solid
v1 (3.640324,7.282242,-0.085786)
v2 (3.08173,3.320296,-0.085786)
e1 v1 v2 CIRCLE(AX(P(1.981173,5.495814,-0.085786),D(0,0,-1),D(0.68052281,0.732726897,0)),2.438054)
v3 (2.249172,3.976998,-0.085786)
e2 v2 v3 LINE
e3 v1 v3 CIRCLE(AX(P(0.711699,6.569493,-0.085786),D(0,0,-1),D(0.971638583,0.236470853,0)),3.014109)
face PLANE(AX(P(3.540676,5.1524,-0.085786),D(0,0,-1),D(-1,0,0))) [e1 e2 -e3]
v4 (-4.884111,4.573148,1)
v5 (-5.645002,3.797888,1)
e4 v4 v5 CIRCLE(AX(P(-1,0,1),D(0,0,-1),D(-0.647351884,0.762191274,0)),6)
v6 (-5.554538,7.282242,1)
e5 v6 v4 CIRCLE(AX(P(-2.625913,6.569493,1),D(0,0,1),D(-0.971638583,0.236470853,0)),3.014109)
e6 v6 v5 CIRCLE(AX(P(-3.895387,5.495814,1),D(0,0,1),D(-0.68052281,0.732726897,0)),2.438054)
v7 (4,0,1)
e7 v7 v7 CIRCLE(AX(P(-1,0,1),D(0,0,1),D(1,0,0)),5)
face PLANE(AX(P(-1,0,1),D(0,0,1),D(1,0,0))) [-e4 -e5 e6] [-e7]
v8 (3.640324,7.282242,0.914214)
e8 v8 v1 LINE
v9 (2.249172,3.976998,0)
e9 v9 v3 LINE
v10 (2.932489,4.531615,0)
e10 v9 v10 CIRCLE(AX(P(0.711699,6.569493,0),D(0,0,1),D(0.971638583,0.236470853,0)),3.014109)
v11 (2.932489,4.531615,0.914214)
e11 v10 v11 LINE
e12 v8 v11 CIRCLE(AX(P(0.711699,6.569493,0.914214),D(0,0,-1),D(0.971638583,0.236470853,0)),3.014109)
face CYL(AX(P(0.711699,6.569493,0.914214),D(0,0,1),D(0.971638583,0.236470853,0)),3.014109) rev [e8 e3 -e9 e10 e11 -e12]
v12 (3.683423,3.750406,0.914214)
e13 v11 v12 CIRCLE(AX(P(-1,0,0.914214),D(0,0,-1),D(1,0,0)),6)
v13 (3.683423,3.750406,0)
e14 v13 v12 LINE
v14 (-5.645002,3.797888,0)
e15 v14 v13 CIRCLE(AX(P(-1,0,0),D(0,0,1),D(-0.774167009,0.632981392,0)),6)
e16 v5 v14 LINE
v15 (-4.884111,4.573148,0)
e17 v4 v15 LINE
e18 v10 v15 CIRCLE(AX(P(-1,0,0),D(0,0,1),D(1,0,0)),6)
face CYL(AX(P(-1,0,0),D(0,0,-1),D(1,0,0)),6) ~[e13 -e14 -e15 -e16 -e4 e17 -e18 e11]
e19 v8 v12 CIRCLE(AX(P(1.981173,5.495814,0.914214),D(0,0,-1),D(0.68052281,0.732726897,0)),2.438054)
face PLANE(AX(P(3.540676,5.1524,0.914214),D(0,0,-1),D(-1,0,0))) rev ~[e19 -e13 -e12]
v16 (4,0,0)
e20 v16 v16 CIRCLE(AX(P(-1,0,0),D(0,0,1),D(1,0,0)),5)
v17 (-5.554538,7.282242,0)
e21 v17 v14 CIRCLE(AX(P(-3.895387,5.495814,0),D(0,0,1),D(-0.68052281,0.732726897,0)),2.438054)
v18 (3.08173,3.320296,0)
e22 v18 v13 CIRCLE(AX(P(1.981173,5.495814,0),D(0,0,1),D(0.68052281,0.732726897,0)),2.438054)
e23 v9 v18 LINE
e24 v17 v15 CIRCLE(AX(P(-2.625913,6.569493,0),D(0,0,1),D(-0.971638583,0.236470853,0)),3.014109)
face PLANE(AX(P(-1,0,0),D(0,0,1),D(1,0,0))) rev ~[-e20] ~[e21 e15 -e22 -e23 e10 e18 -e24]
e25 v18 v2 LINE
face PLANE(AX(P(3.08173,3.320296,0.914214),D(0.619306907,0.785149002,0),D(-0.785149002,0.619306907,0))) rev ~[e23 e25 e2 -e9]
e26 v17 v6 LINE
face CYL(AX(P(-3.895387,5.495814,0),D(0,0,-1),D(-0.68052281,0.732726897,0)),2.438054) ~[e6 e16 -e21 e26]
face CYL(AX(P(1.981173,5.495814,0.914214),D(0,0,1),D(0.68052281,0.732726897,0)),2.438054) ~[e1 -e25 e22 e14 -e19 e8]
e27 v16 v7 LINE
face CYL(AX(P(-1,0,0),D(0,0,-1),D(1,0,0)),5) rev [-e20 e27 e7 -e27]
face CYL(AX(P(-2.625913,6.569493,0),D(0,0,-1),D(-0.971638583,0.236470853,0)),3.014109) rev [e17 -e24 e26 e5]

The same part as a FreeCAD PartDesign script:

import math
import FreeCAD as App
import Part
import Sketcher

V = App.Vector
Q = App.Units.Quantity

doc = App.newDocument("Part")
params = doc.addObject("Spreadsheet::Sheet", "Params")
for row, (alias, value) in enumerate([
    ("pad1_length", "1 mm"),
    ("pad2_length", "1 mm"),
    ("sketch3_diameter", "12 mm"),
    ("sketch3_diameter2", "10 mm"),
    ("pad3_length", "1 mm"),
    ("pad4_length", "1 mm"),
], start=1):
    params.set(f"A{row}", alias)
    params.set(f"B{row}", "=" + value)
    params.setAlias(f"B{row}", alias)

body = doc.addObject("PartDesign::Body", "Body")

sketch1 = body.newObject("Sketcher::SketchObject", "Sketch")
sketch1.AttachmentSupport = (doc.getObject("XY_Plane"), [""])
sketch1.MapMode = "FlatFace"
sketch1.addGeometry([
    Part.ArcOfCircle(Part.Circle(V(-3.9, 5.5, 0), V(0, 0, 1), 2.4), math.radians(133), math.radians(243)),
    Part.LineSegment(V(-5, 3.3, 0), V(-4.2, 4, 0)),
    Part.ArcOfCircle(Part.Circle(V(-2.6, 6.6, 0), V(0, 0, 1), 3), math.radians(166), math.radians(239)),
], False)
sketch1.addConstraint([
    Sketcher.Constraint("Coincident", 0, 2, 1, 1),
    Sketcher.Constraint("Coincident", 1, 2, 2, 2),
    Sketcher.Constraint("Coincident", 2, 1, 0, 1),
    Sketcher.Constraint("Radius", 2, Q("3.014109 mm")),
    Sketcher.Constraint("DistanceY", -1, 1, 1, 2, Q("3.976998 mm")),
    Sketcher.Constraint("Radius", 0, Q("2.438054 mm")),
    Sketcher.Constraint("DistanceX", 1, 2, 0, 3, Q("0.267999 mm")),
    Sketcher.Constraint("DistanceX", 2, 1, -1, 1, Q("5.554538 mm")),
    Sketcher.Constraint("DistanceY", 0, 3, 2, 3, Q("1.073679 mm")),
    Sketcher.Constraint("DistanceY", 0, 2, 0, 3, Q("2.175518 mm")),
    Sketcher.Constraint("DistanceX", 0, 2, 2, 3, Q("2.370031 mm")),
])
pad1 = body.newObject("PartDesign::Pad", "Pad")
pad1.Profile = sketch1
pad1.setExpression("Length", "Params.pad1_length")
body2 = doc.addObject("PartDesign::Body", "Body001")

sketch2 = body2.newObject("Sketcher::SketchObject", "Sketch001")
sketch2.AttachmentSupport = (doc.getObject("XY_Plane001"), [""])
sketch2.MapMode = "FlatFace"
sketch2.addGeometry([
    Part.ArcOfCircle(Part.Circle(V(-3.9, 5.5, 0), V(0, 0, 1), 2.4), math.radians(133), math.radians(243)),
    Part.LineSegment(V(-5, 3.3, 0), V(-4.2, 4, 0)),
    Part.ArcOfCircle(Part.Circle(V(-2.6, 6.6, 0), V(0, 0, 1), 3), math.radians(166), math.radians(239)),
], False)
sketch2.addConstraint([
    Sketcher.Constraint("Coincident", 0, 2, 1, 1),
    Sketcher.Constraint("Coincident", 1, 2, 2, 2),
    Sketcher.Constraint("Coincident", 2, 1, 0, 1),
    Sketcher.Constraint("Radius", 2, Q("3.014109 mm")),
    Sketcher.Constraint("DistanceY", -1, 1, 1, 2, Q("3.976998 mm")),
    Sketcher.Constraint("Radius", 0, Q("2.438054 mm")),
    Sketcher.Constraint("DistanceX", 1, 2, 0, 3, Q("0.267999 mm")),
    Sketcher.Constraint("DistanceX", 2, 1, -1, 1, Q("5.554538 mm")),
    Sketcher.Constraint("DistanceY", 0, 3, 2, 3, Q("1.073679 mm")),
    Sketcher.Constraint("DistanceY", 0, 2, 0, 3, Q("2.175518 mm")),
    Sketcher.Constraint("DistanceX", 0, 2, 2, 3, Q("2.370031 mm")),
])
pad2 = body2.newObject("PartDesign::Pad", "Pad001")
pad2.Profile = sketch2
pad2.setExpression("Length", "Params.pad2_length")
body3 = doc.addObject("PartDesign::Body", "Body002")

sketch3 = body3.newObject("Sketcher::SketchObject", "Sketch002")
sketch3.AttachmentSupport = (doc.getObject("XY_Plane002"), [""])
sketch3.MapMode = "FlatFace"
sketch3.addGeometry([
    Part.Circle(V(-1, 0, 0), V(0, 0, 1), 6),
    Part.Circle(V(-1, 0, 0), V(0, 0, 1), 5),
], False)
sketch3.addConstraint([
    Sketcher.Constraint("Coincident", 1, 3, 0, 3),
    Sketcher.Constraint("PointOnObject", 0, 3, -1),
    Sketcher.Constraint("Diameter", 0, Q("12 mm")),
    Sketcher.Constraint("Diameter", 1, Q("10 mm")),
    Sketcher.Constraint("DistanceX", 0, 3, -1, 1, Q("1 mm")),
])
sketch3.setExpression("Constraints[2]", "Params.sketch3_diameter")
sketch3.setExpression("Constraints[3]", "Params.sketch3_diameter2")
pad3 = body3.newObject("PartDesign::Pad", "Pad002")
pad3.Profile = sketch3
pad3.setExpression("Length", "Params.pad3_length")
body4 = doc.addObject("PartDesign::Body", "Body003")

sketch4 = body4.newObject("Sketcher::SketchObject", "Sketch003")
sketch4.AttachmentSupport = (doc.getObject("XY_Plane003"), [""])
sketch4.MapMode = "FlatFace"
sketch4.addGeometry([
    Part.ArcOfCircle(Part.Circle(V(-3.9, 5.5, 0), V(0, 0, 1), 2.4), math.radians(133), math.radians(243)),
    Part.LineSegment(V(-5, 3.3, 0), V(-4.2, 4, 0)),
    Part.ArcOfCircle(Part.Circle(V(-2.6, 6.6, 0), V(0, 0, 1), 3), math.radians(166), math.radians(239)),
], False)
sketch4.addConstraint([
    Sketcher.Constraint("Coincident", 0, 2, 1, 1),
    Sketcher.Constraint("Coincident", 1, 2, 2, 2),
    Sketcher.Constraint("Coincident", 2, 1, 0, 1),
    Sketcher.Constraint("Radius", 2, Q("3.014109 mm")),
    Sketcher.Constraint("DistanceY", -1, 1, 1, 2, Q("3.976998 mm")),
    Sketcher.Constraint("Radius", 0, Q("2.438054 mm")),
    Sketcher.Constraint("DistanceX", 1, 2, 0, 3, Q("0.267999 mm")),
    Sketcher.Constraint("DistanceX", 2, 1, -1, 1, Q("5.554538 mm")),
    Sketcher.Constraint("DistanceY", 0, 3, 2, 3, Q("1.073679 mm")),
    Sketcher.Constraint("DistanceY", 0, 2, 0, 3, Q("2.175518 mm")),
    Sketcher.Constraint("DistanceX", 0, 2, 2, 3, Q("2.370031 mm")),
])
pad4 = body4.newObject("PartDesign::Pad", "Pad003")
pad4.Profile = sketch4
pad4.setExpression("Length", "Params.pad4_length")
body5 = doc.addObject("PartDesign::Body", "Body004")
body5.AllowCompound = True
doc.recompute()

body4.Placement = App.Placement(V(-1.914214, 0, 0.914214), App.Rotation(V(0, 1, 0), 180))
boolean = body5.newObject("PartDesign::Boolean", "Boolean")
boolean.Type = "Fuse"
boolean.addObjects([body4])
doc.recompute()

boolean2 = body5.newObject("PartDesign::Boolean", "Boolean001")
boolean2.Type = "Fuse"
boolean2.addObjects([body])
doc.recompute()

boolean3 = body5.newObject("PartDesign::Boolean", "Boolean002")
boolean3.Type = "Fuse"
boolean3.addObjects([body2])
doc.recompute()

boolean4 = body5.newObject("PartDesign::Boolean", "Boolean003")
boolean4.Type = "Fuse"
boolean4.addObjects([body3])

doc.recompute()
